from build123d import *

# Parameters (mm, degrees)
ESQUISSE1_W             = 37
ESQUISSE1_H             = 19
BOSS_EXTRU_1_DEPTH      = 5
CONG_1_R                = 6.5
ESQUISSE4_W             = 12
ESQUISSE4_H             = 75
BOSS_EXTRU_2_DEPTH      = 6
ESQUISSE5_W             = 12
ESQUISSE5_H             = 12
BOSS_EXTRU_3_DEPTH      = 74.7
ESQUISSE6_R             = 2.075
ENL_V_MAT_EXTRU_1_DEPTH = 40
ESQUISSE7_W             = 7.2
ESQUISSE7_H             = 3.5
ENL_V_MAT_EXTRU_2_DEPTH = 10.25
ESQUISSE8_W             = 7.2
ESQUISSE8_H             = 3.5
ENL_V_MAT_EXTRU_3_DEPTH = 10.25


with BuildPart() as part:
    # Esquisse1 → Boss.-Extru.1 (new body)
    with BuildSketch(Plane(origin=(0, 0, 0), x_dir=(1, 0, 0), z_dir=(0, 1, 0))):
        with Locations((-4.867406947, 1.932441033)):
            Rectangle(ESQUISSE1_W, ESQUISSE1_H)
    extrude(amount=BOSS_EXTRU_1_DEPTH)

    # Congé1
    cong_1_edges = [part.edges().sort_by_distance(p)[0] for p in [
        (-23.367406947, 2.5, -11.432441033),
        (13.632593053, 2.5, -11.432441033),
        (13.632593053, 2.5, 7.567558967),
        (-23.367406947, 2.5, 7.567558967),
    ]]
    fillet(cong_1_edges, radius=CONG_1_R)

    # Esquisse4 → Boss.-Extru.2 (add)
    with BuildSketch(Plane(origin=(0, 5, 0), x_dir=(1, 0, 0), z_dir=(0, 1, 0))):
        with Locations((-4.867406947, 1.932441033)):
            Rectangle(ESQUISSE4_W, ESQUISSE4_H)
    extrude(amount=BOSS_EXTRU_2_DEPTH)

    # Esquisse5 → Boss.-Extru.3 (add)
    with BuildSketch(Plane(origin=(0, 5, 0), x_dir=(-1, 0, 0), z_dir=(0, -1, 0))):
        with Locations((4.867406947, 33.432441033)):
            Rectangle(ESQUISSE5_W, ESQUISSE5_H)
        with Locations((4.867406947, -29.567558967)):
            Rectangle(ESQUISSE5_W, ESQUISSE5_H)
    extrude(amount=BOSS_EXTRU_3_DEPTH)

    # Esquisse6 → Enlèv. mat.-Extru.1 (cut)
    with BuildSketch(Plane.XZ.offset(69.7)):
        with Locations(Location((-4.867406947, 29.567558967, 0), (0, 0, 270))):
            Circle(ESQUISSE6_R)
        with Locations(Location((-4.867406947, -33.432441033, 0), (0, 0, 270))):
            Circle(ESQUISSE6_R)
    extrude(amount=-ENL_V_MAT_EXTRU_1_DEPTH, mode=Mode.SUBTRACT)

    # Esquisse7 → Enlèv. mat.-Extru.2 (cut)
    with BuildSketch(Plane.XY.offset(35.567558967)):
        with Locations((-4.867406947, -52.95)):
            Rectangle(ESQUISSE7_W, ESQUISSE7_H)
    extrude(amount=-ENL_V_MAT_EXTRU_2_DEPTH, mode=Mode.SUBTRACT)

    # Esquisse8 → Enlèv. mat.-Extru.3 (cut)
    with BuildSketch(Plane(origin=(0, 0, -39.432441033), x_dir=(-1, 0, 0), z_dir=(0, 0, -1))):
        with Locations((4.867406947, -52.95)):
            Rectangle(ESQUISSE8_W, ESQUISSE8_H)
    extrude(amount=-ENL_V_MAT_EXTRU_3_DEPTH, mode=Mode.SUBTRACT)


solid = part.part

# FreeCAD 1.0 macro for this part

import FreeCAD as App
import Part
import Sketcher
from FreeCAD import Vector
Q = App.Units.Quantity


def edges_at(feature, points):
    """Names of the edges that pass closest to the given points."""
    edges = feature.Shape.Edges
    near = lambda p: min(range(len(edges)), key=lambda i: edges[i].distToShape(Part.Vertex(*p))[0])
    return sorted({f"Edge{near(p) + 1}" for p in points})


def add_polygon(sketch, points):
    """Adds a closed chain of lines whose ends are joined by coincident constraints."""
    first, n = sketch.GeometryCount, len(points)
    for a, b in zip(points, points[1:] + points[:1]):
        sketch.addGeometry(Part.LineSegment(App.Vector(*a, 0), App.Vector(*b, 0)), False)
    for i in range(n):
        sketch.addConstraint(Sketcher.Constraint("Coincident", first + i, 2, first + (i + 1) % n, 1))

doc = App.newDocument("Part")
body = doc.addObject("PartDesign::Body", "Body")

# Sketch on XZ plane
sketch1 = doc.addObject("Sketcher::SketchObject", "Sketch")
body.addObject(sketch1)
sketch1.AttachmentSupport = (doc.XZ_Plane, [""])
sketch1.MapMode = "FlatFace"
add_polygon(sketch1, [(-23, -11), (-23, 8), (14, 8), (14, -11)])  # lines 0-3
sketch1.addConstraint([
    Sketcher.Constraint("Vertical", 0),
    Sketcher.Constraint("Horizontal", 1),
    Sketcher.Constraint("Vertical", 2),
    Sketcher.Constraint("Horizontal", 3),
    Sketcher.Constraint("DistanceX", 1, 1, 1, 2, Q("37 mm")),
    Sketcher.Constraint("DistanceY", 0, 1, 0, 2, Q("19 mm")),
    Sketcher.Constraint("DistanceY", -1, 1, 0, 2, Q("7.567559 mm")),
    Sketcher.Constraint("DistanceX", 0, 2, -1, 1, Q("23.367407 mm")),
])
pad1 = doc.addObject("PartDesign::Pad", "Pad")
body.addObject(pad1)
pad1.Profile = sketch1
pad1.Length = 5
pad1.Reversed = True
doc.recompute()

fillet = doc.addObject("PartDesign::Fillet", "Fillet")
body.addObject(fillet)
fillet.Base = (pad1, edges_at(pad1, [
    (-23.367, 2.5, -11.432),
    (13.633, 2.5, -11.432),
    (13.633, 2.5, 7.568),
    (-23.367, 2.5, 7.568),
]))
fillet.Radius = 6.5

# Sketch on XZ plane
sketch2 = doc.addObject("Sketcher::SketchObject", "Sketch001")
body.addObject(sketch2)
sketch2.AttachmentSupport = (doc.XZ_Plane, [""])
sketch2.MapMode = "FlatFace"
sketch2.AttachmentOffset = App.Placement(Vector(0, 0, -5), App.Rotation())
add_polygon(sketch2, [(-11, -39), (-11, 36), (1, 36), (1, -39)])  # lines 0-3
sketch2.addConstraint([
    Sketcher.Constraint("Vertical", 0),
    Sketcher.Constraint("Horizontal", 1),
    Sketcher.Constraint("Vertical", 2),
    Sketcher.Constraint("Horizontal", 3),
    Sketcher.Constraint("DistanceX", 1, 1, 1, 2, Q("12 mm")),
    Sketcher.Constraint("DistanceY", 0, 1, 0, 2, Q("75 mm")),
    Sketcher.Constraint("DistanceY", -1, 1, 0, 2, Q("35.567559 mm")),
    Sketcher.Constraint("DistanceX", 0, 2, -1, 1, Q("10.867407 mm")),
])
pad2 = doc.addObject("PartDesign::Pad", "Pad001")
body.addObject(pad2)
pad2.Profile = sketch2
pad2.Length = 6
pad2.Reversed = True

# Sketch on XZ plane
sketch3 = doc.addObject("Sketcher::SketchObject", "Sketch002")
body.addObject(sketch3)
sketch3.AttachmentSupport = (doc.XZ_Plane, [""])
sketch3.MapMode = "FlatFace"
sketch3.AttachmentOffset = App.Placement(Vector(0, 0, -5), App.Rotation())
add_polygon(sketch3, [(1, -39), (1, -27), (-11, -27), (-11, -39)])  # lines 0-3
add_polygon(sketch3, [(1, 24), (1, 36), (-11, 36), (-11, 24)])  # lines 4-7
sketch3.addConstraint([
    Sketcher.Constraint("Vertical", 0),
    Sketcher.Constraint("Horizontal", 1),
    Sketcher.Constraint("Vertical", 2),
    Sketcher.Constraint("Horizontal", 3),
    Sketcher.Constraint("Vertical", 4),
    Sketcher.Constraint("Horizontal", 5),
    Sketcher.Constraint("Vertical", 6),
    Sketcher.Constraint("Horizontal", 7),
    Sketcher.Constraint("Vertical", 3, 2, 4, 2),
    Sketcher.Constraint("Vertical", 2, 2, 5, 2),
    Sketcher.Constraint("Equal", 7, 0),
    Sketcher.Constraint("Equal", 2, 4),
    Sketcher.Constraint("DistanceX", 1, 2, 1, 1, Q("12 mm")),
    Sketcher.Constraint("DistanceY", 0, 2, 4, 2, Q("63 mm")),
    Sketcher.Constraint("DistanceY", 0, 2, -1, 1, Q("27.432441 mm")),
    Sketcher.Constraint("DistanceX", -1, 1, 0, 2, Q("1.132593 mm")),
])
pad3 = doc.addObject("PartDesign::Pad", "Pad002")
body.addObject(pad3)
pad3.Profile = sketch3
pad3.Length = 74.7

# Sketch on XZ plane
sketch4 = doc.addObject("Sketcher::SketchObject", "Sketch003")
body.addObject(sketch4)
sketch4.AttachmentSupport = (doc.XZ_Plane, [""])
sketch4.MapMode = "FlatFace"
sketch4.AttachmentOffset = App.Placement(Vector(0, 0, 69.7), App.Rotation())
sketch4.addGeometry([
    Part.Circle(Vector(-4.9, 29.6, 0), Vector(0, 0, 1), 2.1),
    Part.Circle(Vector(-4.9, -33.4, 0), Vector(0, 0, 1), 2.1),
], False)
sketch4.addConstraint([
    Sketcher.Constraint("Equal", 0, 1),
    Sketcher.Constraint("Vertical", 0, 3, 1, 3),
    Sketcher.Constraint("Diameter", 0, Q("4.15 mm")),
    Sketcher.Constraint("DistanceY", 1, 3, 0, 3, Q("63 mm")),
    Sketcher.Constraint("DistanceY", -1, 1, 0, 3, Q("29.567559 mm")),
    Sketcher.Constraint("DistanceX", 0, 3, -1, 1, Q("4.867407 mm")),
])
pocket1 = doc.addObject("PartDesign::Pocket", "Pocket")
body.addObject(pocket1)
pocket1.Profile = sketch4
pocket1.Length = 40

# Sketch on XY plane
sketch5 = doc.addObject("Sketcher::SketchObject", "Sketch004")
body.addObject(sketch5)
sketch5.AttachmentSupport = (doc.XY_Plane, [""])
sketch5.MapMode = "FlatFace"
sketch5.AttachmentOffset = App.Placement(Vector(0, 0, 35.567559), App.Rotation())
add_polygon(sketch5, [(-8.5, -51.2), (-8.5, -54.7), (-1.3, -54.7), (-1.3, -51.2)])  # lines 0-3
sketch5.addConstraint([
    Sketcher.Constraint("Vertical", 0),
    Sketcher.Constraint("Horizontal", 1),
    Sketcher.Constraint("Vertical", 2),
    Sketcher.Constraint("Horizontal", 3),
    Sketcher.Constraint("DistanceX", 1, 1, 1, 2, Q("7.2 mm")),
    Sketcher.Constraint("DistanceY", 0, 2, 0, 1, Q("3.5 mm")),
    Sketcher.Constraint("DistanceY", 0, 2, -1, 1, Q("54.7 mm")),
    Sketcher.Constraint("DistanceX", 0, 2, -1, 1, Q("8.467407 mm")),
])
pocket2 = doc.addObject("PartDesign::Pocket", "Pocket001")
body.addObject(pocket2)
pocket2.Profile = sketch5
pocket2.Length = 10.25

# Sketch on XY plane
sketch6 = doc.addObject("Sketcher::SketchObject", "Sketch005")
body.addObject(sketch6)
sketch6.AttachmentSupport = (doc.XY_Plane, [""])
sketch6.MapMode = "FlatFace"
sketch6.AttachmentOffset = App.Placement(Vector(0, 0, -39.432441), App.Rotation())
add_polygon(sketch6, [(-1.3, -51.2), (-1.3, -54.7), (-8.5, -54.7), (-8.5, -51.2)])  # lines 0-3
sketch6.addConstraint([
    Sketcher.Constraint("Vertical", 0),
    Sketcher.Constraint("Horizontal", 1),
    Sketcher.Constraint("Vertical", 2),
    Sketcher.Constraint("Horizontal", 3),
    Sketcher.Constraint("DistanceX", 1, 2, 1, 1, Q("7.2 mm")),
    Sketcher.Constraint("DistanceY", 0, 2, 0, 1, Q("3.5 mm")),
    Sketcher.Constraint("DistanceY", 0, 2, -1, 1, Q("54.7 mm")),
    Sketcher.Constraint("DistanceX", 0, 2, -1, 1, Q("1.267407 mm")),
])
pocket3 = doc.addObject("PartDesign::Pocket", "Pocket002")
body.addObject(pocket3)
pocket3.Profile = sketch6
pocket3.Length = 10.25
pocket3.Reversed = True

doc.recompute()
